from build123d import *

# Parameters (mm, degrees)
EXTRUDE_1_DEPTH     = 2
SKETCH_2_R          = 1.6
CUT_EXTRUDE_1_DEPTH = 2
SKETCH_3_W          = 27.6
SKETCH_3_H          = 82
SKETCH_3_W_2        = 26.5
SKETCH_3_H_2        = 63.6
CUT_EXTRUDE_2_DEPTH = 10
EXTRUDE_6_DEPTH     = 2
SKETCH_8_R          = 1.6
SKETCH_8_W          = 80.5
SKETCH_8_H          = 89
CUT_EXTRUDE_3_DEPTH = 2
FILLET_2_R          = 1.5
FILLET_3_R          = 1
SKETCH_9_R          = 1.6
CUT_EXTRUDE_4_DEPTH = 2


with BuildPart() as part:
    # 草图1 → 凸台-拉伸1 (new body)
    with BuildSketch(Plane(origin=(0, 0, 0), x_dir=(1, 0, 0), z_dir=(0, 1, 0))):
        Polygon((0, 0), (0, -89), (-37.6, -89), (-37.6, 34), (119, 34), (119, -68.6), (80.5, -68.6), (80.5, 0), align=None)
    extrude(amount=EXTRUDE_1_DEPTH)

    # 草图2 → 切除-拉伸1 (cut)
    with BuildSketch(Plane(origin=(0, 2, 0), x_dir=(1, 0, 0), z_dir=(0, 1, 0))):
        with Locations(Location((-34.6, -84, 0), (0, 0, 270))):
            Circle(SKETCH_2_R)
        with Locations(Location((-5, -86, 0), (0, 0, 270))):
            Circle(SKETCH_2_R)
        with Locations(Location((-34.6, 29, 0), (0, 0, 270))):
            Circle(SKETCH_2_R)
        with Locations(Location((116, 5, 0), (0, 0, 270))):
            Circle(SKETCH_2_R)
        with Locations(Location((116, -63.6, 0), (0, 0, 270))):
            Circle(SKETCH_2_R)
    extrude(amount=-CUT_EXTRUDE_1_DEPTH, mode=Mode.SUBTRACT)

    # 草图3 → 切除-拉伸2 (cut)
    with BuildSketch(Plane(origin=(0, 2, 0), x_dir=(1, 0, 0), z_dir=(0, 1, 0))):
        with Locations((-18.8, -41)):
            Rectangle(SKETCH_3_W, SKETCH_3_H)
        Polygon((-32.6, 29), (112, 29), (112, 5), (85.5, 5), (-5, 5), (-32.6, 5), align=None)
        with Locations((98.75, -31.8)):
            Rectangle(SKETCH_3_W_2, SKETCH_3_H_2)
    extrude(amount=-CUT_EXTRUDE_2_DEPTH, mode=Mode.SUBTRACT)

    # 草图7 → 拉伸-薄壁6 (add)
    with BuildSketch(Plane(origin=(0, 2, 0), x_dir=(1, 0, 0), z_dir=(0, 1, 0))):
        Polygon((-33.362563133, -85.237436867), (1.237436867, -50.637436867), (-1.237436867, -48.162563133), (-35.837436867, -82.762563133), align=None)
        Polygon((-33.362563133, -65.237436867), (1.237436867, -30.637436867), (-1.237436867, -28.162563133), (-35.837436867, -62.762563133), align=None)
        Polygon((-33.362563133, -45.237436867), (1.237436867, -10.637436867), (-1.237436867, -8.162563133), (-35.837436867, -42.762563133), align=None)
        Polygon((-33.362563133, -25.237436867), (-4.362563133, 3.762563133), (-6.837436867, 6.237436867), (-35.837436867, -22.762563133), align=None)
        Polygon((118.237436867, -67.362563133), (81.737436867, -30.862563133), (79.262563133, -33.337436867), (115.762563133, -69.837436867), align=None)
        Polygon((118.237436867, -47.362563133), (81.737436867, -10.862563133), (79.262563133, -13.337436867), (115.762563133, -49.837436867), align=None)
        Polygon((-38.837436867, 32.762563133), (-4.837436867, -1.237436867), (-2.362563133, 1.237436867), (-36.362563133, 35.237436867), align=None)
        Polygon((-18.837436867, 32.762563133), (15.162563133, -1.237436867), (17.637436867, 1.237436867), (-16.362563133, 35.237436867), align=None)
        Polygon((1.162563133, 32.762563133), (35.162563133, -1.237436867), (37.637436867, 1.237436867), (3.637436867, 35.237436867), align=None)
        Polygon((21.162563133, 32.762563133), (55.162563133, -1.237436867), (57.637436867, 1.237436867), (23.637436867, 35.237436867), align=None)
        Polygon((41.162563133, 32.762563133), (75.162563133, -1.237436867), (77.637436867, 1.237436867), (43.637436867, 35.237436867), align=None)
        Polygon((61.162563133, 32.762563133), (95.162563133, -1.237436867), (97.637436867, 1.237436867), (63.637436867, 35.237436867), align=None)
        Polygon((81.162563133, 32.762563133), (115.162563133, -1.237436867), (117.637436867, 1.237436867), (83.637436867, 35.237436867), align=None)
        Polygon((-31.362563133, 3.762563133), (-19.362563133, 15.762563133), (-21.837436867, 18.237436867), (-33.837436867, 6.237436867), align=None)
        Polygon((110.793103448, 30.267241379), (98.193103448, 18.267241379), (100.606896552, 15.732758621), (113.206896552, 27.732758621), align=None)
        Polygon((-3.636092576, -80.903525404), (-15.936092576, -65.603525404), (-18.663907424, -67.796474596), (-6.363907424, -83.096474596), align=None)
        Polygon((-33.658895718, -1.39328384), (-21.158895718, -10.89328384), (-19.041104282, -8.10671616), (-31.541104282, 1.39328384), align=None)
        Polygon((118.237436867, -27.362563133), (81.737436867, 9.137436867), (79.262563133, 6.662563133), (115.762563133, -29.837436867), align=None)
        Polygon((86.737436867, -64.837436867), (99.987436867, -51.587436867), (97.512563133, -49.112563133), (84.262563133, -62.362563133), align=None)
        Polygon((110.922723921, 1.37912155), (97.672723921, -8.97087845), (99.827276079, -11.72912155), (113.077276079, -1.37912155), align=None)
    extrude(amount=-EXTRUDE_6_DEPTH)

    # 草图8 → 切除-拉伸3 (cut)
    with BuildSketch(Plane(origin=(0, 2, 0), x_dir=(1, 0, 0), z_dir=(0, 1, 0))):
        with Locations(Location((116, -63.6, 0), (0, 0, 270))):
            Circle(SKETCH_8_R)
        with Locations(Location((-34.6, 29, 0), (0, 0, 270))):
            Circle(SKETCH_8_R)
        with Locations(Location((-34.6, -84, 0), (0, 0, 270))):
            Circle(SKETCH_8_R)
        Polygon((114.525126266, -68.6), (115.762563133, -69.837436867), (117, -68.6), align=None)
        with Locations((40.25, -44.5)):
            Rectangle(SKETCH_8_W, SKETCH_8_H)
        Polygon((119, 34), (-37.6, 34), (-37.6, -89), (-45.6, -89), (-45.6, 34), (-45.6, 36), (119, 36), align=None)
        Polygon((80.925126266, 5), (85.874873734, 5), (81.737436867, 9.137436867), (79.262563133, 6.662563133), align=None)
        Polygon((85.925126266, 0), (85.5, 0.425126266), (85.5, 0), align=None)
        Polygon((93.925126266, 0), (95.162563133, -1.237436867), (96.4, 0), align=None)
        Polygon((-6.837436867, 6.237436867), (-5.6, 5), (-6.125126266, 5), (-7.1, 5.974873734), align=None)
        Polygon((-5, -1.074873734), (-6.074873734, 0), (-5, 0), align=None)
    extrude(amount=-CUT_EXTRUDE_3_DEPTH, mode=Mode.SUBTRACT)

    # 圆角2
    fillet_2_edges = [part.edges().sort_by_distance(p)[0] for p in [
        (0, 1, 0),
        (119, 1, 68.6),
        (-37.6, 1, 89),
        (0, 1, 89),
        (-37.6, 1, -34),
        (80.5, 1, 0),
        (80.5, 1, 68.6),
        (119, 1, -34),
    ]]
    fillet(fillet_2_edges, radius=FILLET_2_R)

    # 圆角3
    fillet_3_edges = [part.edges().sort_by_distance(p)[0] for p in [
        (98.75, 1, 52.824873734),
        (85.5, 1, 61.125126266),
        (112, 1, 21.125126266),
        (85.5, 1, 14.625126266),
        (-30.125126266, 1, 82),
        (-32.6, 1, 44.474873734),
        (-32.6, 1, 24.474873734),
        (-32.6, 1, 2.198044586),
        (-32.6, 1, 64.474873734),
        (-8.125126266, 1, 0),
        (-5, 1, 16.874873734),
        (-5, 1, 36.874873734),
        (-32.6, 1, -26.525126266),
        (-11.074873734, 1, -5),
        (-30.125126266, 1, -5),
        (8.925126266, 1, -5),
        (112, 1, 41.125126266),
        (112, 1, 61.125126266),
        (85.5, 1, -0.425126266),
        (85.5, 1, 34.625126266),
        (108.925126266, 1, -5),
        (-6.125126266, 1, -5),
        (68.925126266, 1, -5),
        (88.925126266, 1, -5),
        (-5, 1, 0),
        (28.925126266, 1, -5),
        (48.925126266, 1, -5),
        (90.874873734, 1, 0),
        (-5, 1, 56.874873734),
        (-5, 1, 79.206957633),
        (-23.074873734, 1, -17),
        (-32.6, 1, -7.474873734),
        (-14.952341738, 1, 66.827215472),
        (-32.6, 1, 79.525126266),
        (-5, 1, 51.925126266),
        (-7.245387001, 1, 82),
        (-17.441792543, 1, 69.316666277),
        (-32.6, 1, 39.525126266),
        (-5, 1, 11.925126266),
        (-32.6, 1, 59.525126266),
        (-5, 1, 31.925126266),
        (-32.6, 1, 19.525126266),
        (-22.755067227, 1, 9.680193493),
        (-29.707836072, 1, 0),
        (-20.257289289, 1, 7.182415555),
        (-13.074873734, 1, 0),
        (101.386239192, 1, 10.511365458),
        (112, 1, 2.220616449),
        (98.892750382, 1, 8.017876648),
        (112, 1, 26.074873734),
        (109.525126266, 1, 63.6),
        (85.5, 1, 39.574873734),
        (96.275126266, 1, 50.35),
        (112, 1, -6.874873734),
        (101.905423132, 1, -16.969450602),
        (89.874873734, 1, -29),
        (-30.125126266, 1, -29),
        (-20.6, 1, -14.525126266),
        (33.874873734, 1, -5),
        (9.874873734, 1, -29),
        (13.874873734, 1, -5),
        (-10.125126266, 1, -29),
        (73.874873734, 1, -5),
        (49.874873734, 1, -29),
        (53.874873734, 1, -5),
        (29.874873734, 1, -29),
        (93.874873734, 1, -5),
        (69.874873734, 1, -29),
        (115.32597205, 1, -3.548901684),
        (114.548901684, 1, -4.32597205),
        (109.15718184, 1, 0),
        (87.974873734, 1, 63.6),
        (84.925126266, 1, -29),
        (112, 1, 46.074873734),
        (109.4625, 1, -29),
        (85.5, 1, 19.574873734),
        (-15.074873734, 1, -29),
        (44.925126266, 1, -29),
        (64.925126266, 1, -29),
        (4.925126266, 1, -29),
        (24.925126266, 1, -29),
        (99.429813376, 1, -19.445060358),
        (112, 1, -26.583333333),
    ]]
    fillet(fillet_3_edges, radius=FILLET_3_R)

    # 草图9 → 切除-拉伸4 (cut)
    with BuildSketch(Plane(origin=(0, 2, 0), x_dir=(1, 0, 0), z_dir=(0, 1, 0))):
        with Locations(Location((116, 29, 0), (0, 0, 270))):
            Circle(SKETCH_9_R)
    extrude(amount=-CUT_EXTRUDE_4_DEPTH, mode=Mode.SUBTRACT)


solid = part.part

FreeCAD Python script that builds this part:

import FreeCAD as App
import Part
import Sketcher


def edges_at(feature, points):
    """Names of the edges that pass closest to the given points."""
    edges = feature.Shape.Edges
    near = lambda p: min(range(len(edges)), key=lambda i: edges[i].distToShape(Part.Vertex(*p))[0])
    return sorted({f"Edge{near(p) + 1}" for p in points})


def add_polygon(sketch, points):
    """Adds a closed chain of lines whose ends are joined by coincident constraints."""
    first, n = sketch.GeometryCount, len(points)
    for a, b in zip(points, points[1:] + points[:1]):
        sketch.addGeometry(Part.LineSegment(App.Vector(*a, 0), App.Vector(*b, 0)), False)
    for i in range(n):
        sketch.addConstraint(Sketcher.Constraint("Coincident", first + i, 2, first + (i + 1) % n, 1))

doc = App.newDocument("Part")
body = doc.addObject("PartDesign::Body", "Body")

# Sketch on XZ plane
sketch1 = body.newObject("Sketcher::SketchObject", "Sketch")
sketch1.AttachmentSupport = (doc.getObject("XZ_Plane"), [""])
sketch1.MapMode = "FlatFace"
add_polygon(sketch1, [(0, 89), (0, 0), (80, 0), (80, 69), (119, 69), (119, -34), (-38, -34), (-38, 89)])  # lines 0-7
sketch1.addConstraint(Sketcher.Constraint("Vertical", 0))
sketch1.addConstraint(Sketcher.Constraint("Horizontal", 1))
sketch1.addConstraint(Sketcher.Constraint("Vertical", 2))
sketch1.addConstraint(Sketcher.Constraint("Horizontal", 3))
sketch1.addConstraint(Sketcher.Constraint("Vertical", 4))
sketch1.addConstraint(Sketcher.Constraint("Horizontal", 5))
sketch1.addConstraint(Sketcher.Constraint("Vertical", 6))
sketch1.addConstraint(Sketcher.Constraint("Horizontal", 7))
sketch1.addConstraint(Sketcher.Constraint("Coincident", 0, 2, -1, 1))
sketch1.addConstraint(Sketcher.Constraint("DistanceY", 0, 2, 0, 1, 89.0))
sketch1.addConstraint(Sketcher.Constraint("DistanceY", 6, 1, 6, 2, 123.0))
sketch1.addConstraint(Sketcher.Constraint("DistanceX", 1, 1, 1, 2, 80.5))
sketch1.addConstraint(Sketcher.Constraint("DistanceX", 3, 1, 3, 2, 38.5))
sketch1.addConstraint(Sketcher.Constraint("DistanceX", 5, 2, 5, 1, 156.6))
sketch1.addConstraint(Sketcher.Constraint("DistanceY", 2, 1, 2, 2, 68.6))
pad1 = body.newObject("PartDesign::Pad", "Pad")
pad1.Profile = sketch1
pad1.Length = 2
pad1.Reversed = True

# Sketch on XZ plane
sketch2 = body.newObject("Sketcher::SketchObject", "Sketch001")
sketch2.AttachmentSupport = (doc.getObject("XZ_Plane"), [""])
sketch2.MapMode = "FlatFace"
sketch2.AttachmentOffset = App.Placement(App.Vector(0, 0, -2), App.Rotation())
sketch2.addGeometry(Part.Circle(App.Vector(-34.6, 84, 0), App.Vector(0, 0, 1), 1.6), False)
sketch2.addGeometry(Part.Circle(App.Vector(-5, 86, 0), App.Vector(0, 0, 1), 1.6), False)
sketch2.addGeometry(Part.Circle(App.Vector(-34.6, -29, 0), App.Vector(0, 0, 1), 1.6), False)
sketch2.addGeometry(Part.Circle(App.Vector(116, -5, 0), App.Vector(0, 0, 1), 1.6), False)
sketch2.addGeometry(Part.Circle(App.Vector(116, 63.6, 0), App.Vector(0, 0, 1), 1.6), False)
sketch2.addConstraint(Sketcher.Constraint("Equal", 0, 1))
sketch2.addConstraint(Sketcher.Constraint("Equal", 1, 2))
sketch2.addConstraint(Sketcher.Constraint("Equal", 2, 3))
sketch2.addConstraint(Sketcher.Constraint("Equal", 3, 4))
sketch2.addConstraint(Sketcher.Constraint("Vertical", 0, 3, 2, 3))
sketch2.addConstraint(Sketcher.Constraint("Vertical", 3, 3, 4, 3))
sketch2.addConstraint(Sketcher.Constraint("Diameter", 0, 3.2))
sketch2.addConstraint(Sketcher.Constraint("DistanceY", -1, 1, 0, 3, 84.0))
sketch2.addConstraint(Sketcher.Constraint("DistanceX", 1, 3, -1, 1, 5.0))
sketch2.addConstraint(Sketcher.Constraint("DistanceY", -1, 1, 1, 3, 86.0))
sketch2.addConstraint(Sketcher.Constraint("DistanceY", 2, 3, -1, 1, 29.0))
sketch2.addConstraint(Sketcher.Constraint("DistanceX", -1, 1, 3, 3, 116.0))
sketch2.addConstraint(Sketcher.Constraint("DistanceY", 3, 3, -1, 1, 5.0))
sketch2.addConstraint(Sketcher.Constraint("DistanceX", 0, 3, -1, 1, 34.6))
sketch2.addConstraint(Sketcher.Constraint("DistanceY", -1, 1, 4, 3, 63.6))
pocket1 = body.newObject("PartDesign::Pocket", "Pocket")
pocket1.Profile = sketch2
pocket1.Length = 2
pocket1.Reversed = True

# Sketch on XZ plane
sketch3 = body.newObject("Sketcher::SketchObject", "Sketch002")
sketch3.AttachmentSupport = (doc.getObject("XZ_Plane"), [""])
sketch3.MapMode = "FlatFace"
sketch3.AttachmentOffset = App.Placement(App.Vector(0, 0, -2), App.Rotation())
add_polygon(sketch3, [(-33, 0), (-33, 82), (-5, 82), (-5, 0)])  # lines 0-3
add_polygon(sketch3, [(112, -29), (-33, -29), (-33, -5), (112, -5)])  # lines 4-7
add_polygon(sketch3, [(86, 0), (86, 64), (112, 64), (112, 0)])  # lines 8-11
sketch3.addConstraint(Sketcher.Constraint("Vertical", 0))
sketch3.addConstraint(Sketcher.Constraint("Horizontal", 1))
sketch3.addConstraint(Sketcher.Constraint("Vertical", 2))
sketch3.addConstraint(Sketcher.Constraint("Horizontal", 3))
sketch3.addConstraint(Sketcher.Constraint("Horizontal", 4))
sketch3.addConstraint(Sketcher.Constraint("Vertical", 5))
sketch3.addConstraint(Sketcher.Constraint("Horizontal", 6))
sketch3.addConstraint(Sketcher.Constraint("Vertical", 7))
sketch3.addConstraint(Sketcher.Constraint("Vertical", 8))
sketch3.addConstraint(Sketcher.Constraint("Horizontal", 9))
sketch3.addConstraint(Sketcher.Constraint("Vertical", 10))
sketch3.addConstraint(Sketcher.Constraint("Horizontal", 11))
sketch3.addConstraint(Sketcher.Constraint("PointOnObject", 2, 2, -1))
sketch3.addConstraint(Sketcher.Constraint("PointOnObject", 10, 2, -1))
sketch3.addConstraint(Sketcher.Constraint("Vertical", 3, 2, 4, 2))
sketch3.addConstraint(Sketcher.Constraint("Vertical", 7, 2, 9, 2))
sketch3.addConstraint(Sketcher.Constraint("DistanceY", 0, 1, 0, 2, 82.0))
sketch3.addConstraint(Sketcher.Constraint("DistanceY", 5, 1, 5, 2, 24.0))
sketch3.addConstraint(Sketcher.Constraint("DistanceX", 1, 1, 1, 2, 27.6))
sketch3.addConstraint(Sketcher.Constraint("DistanceX", 4, 2, 4, 1, 144.6))
sketch3.addConstraint(Sketcher.Constraint("DistanceX", 9, 1, 9, 2, 26.5))
sketch3.addConstraint(Sketcher.Constraint("DistanceY", 8, 1, 8, 2, 63.6))
sketch3.addConstraint(Sketcher.Constraint("DistanceX", 1, 2, -1, 1, 5.0))
sketch3.addConstraint(Sketcher.Constraint("DistanceY", 4, 2, -1, 1, 29.0))
pocket2 = body.newObject("PartDesign::Pocket", "Pocket001")
pocket2.Profile = sketch3
pocket2.Length = 10
pocket2.Reversed = True

# Sketch on XZ plane
sketch4 = body.newObject("Sketcher::SketchObject", "Sketch003")
sketch4.AttachmentSupport = (doc.getObject("XZ_Plane"), [""])
sketch4.MapMode = "FlatFace"
sketch4.AttachmentOffset = App.Placement(App.Vector(0, 0, -2), App.Rotation())
add_polygon(sketch4, [(-35.84, 82.76), (-33.36, 85.24), (-17.44, 69.32), (-6.36, 83.1), (-3.64, 80.9), (-14.95, 66.83), (1.24, 50.64), (-1.24, 48.16)])  # lines 0-7
add_polygon(sketch4, [(-33.36, 65.24), (1.24, 30.64), (-1.24, 28.16), (-35.84, 62.76)])  # lines 8-11
add_polygon(sketch4, [(-33.36, 45.24), (1.24, 10.64), (-1.24, 8.16), (-35.84, 42.76)])  # lines 12-15
add_polygon(sketch4, [(-20.6, -14.53), (-9.57, -3.5), (-20.26, 7.18), (-31.54, -1.39), (-33.66, 1.39), (-22.76, 9.68), (-35.84, 22.76), (-33.36, 25.24), (-7.1, -1.03), (-4.84, 1.24), (-2.36, -1.24), (-4.63, -3.5), (-4.36, -3.76), (-6.84, -6.24), (-7.1, -5.97), (-36.36, -35.24), (-38.84, -32.76), (-23.07, -17), (-33.84, -6.24), (-31.36, -3.76)])  # lines 16-35
add_polygon(sketch4, [(115.76, 69.84), (118.24, 67.36), (81.74, 30.86), (79.26, 33.34), (96.28, 50.35), (84.26, 62.36), (86.74, 64.84), (98.75, 52.82)])  # lines 36-43
add_polygon(sketch4, [(118.24, 47.36), (81.74, 10.86), (79.26, 13.34), (115.76, 49.84)])  # lines 44-47
add_polygon(sketch4, [(-18.84, -32.76), (15.16, 1.24), (17.64, -1.24), (-16.36, -35.24)])  # lines 48-51
add_polygon(sketch4, [(1.16, -32.76), (35.16, 1.24), (37.64, -1.24), (3.64, -35.24)])  # lines 52-55
add_polygon(sketch4, [(21.16, -32.76), (55.16, 1.24), (57.64, -1.24), (23.64, -35.24)])  # lines 56-59
add_polygon(sketch4, [(41.16, -32.76), (75.16, 1.24), (77.64, -1.24), (43.64, -35.24)])  # lines 60-63
add_polygon(sketch4, [(61.16, -32.76), (95.16, 1.24), (97.64, -1.24), (63.64, -35.24)])  # lines 64-67
add_polygon(sketch4, [(83.64, -35.24), (81.16, -32.76), (115.16, 1.24), (117.64, -1.24), (101.91, -16.97), (113.21, -27.73), (110.79, -30.27), (99.43, -19.45)])  # lines 68-75
add_polygon(sketch4, [(115.76, 29.84), (118.24, 27.36), (101.39, 10.51), (113.08, 1.38), (110.92, -1.38), (98.89, 8.02), (81.74, -9.14), (79.26, -6.66)])  # lines 76-83
sketch4.addConstraint(Sketcher.Constraint("Perpendicular", 0, 1))
sketch4.addConstraint(Sketcher.Constraint("Perpendicular", 2, 3))
sketch4.addConstraint(Sketcher.Constraint("Perpendicular", 3, 4))
sketch4.addConstraint(Sketcher.Constraint("Parallel", 1, 5))
sketch4.addConstraint(Sketcher.Constraint("Perpendicular", 5, 6))
sketch4.addConstraint(Sketcher.Constraint("Perpendicular", 6, 7))
sketch4.addConstraint(Sketcher.Constraint("Parallel", 7, 8))
sketch4.addConstraint(Sketcher.Constraint("Perpendicular", 8, 9))
sketch4.addConstraint(Sketcher.Constraint("Perpendicular", 9, 10))
sketch4.addConstraint(Sketcher.Constraint("Perpendicular", 10, 11))
sketch4.addConstraint(Sketcher.Constraint("Perpendicular", 11, 12))
sketch4.addConstraint(Sketcher.Constraint("Perpendicular", 12, 13))
sketch4.addConstraint(Sketcher.Constraint("Perpendicular", 13, 14))
sketch4.addConstraint(Sketcher.Constraint("Perpendicular", 14, 15))
sketch4.addConstraint(Sketcher.Constraint("Parallel", 15, 16))
sketch4.addConstraint(Sketcher.Constraint("Perpendicular", 16, 17))
sketch4.addConstraint(Sketcher.Constraint("Perpendicular", 18, 19))
sketch4.addConstraint(Sketcher.Constraint("Perpendicular", 19, 20))
sketch4.addConstraint(Sketcher.Constraint("Parallel", 17, 21))
sketch4.addConstraint(Sketcher.Constraint("Perpendicular", 21, 22))
sketch4.addConstraint(Sketcher.Constraint("Perpendicular", 22, 23))
sketch4.addConstraint(Sketcher.Constraint("Perpendicular", 23, 24))
sketch4.addConstraint(Sketcher.Constraint("Perpendicular", 24, 25))
sketch4.addConstraint(Sketcher.Constraint("Perpendicular", 25, 26))
sketch4.addConstraint(Sketcher.Constraint("Perpendicular", 26, 27))
sketch4.addConstraint(Sketcher.Constraint("Perpendicular", 27, 28))
sketch4.addConstraint(Sketcher.Constraint("Perpendicular", 28, 29))
sketch4.addConstraint(Sketcher.Constraint("Perpendicular", 29, 30))
sketch4.addConstraint(Sketcher.Constraint("Perpendicular", 30, 31))
sketch4.addConstraint(Sketcher.Constraint("Perpendicular", 31, 32))
sketch4.addConstraint(Sketcher.Constraint("Perpendicular", 32, 33))
sketch4.addConstraint(Sketcher.Constraint("Perpendicular", 33, 34))
sketch4.addConstraint(Sketcher.Constraint("Perpendicular", 34, 35))
sketch4.addConstraint(Sketcher.Constraint("Parallel", 35, 36))
sketch4.addConstraint(Sketcher.Constraint("Perpendicular", 36, 37))
sketch4.addConstraint(Sketcher.Constraint("Perpendicular", 37, 38))
sketch4.addConstraint(Sketcher.Constraint("Perpendicular", 38, 39))
sketch4.addConstraint(Sketcher.Constraint("Perpendicular", 39, 40))
sketch4.addConstraint(Sketcher.Constraint("Perpendicular", 40, 41))
sketch4.addConstraint(Sketcher.Constraint("Perpendicular", 41, 42))
sketch4.addConstraint(Sketcher.Constraint("Perpendicular", 42, 43))
sketch4.addConstraint(Sketcher.Constraint("Parallel", 43, 44))
sketch4.addConstraint(Sketcher.Constraint("Perpendicular", 44, 45))
sketch4.addConstraint(Sketcher.Constraint("Perpendicular", 45, 46))
sketch4.addConstraint(Sketcher.Constraint("Perpendicular", 46, 47))
sketch4.addConstraint(Sketcher.Constraint("Perpendicular", 47, 48))
sketch4.addConstraint(Sketcher.Constraint("Perpendicular", 48, 49))
sketch4.addConstraint(Sketcher.Constraint("Perpendicular", 49, 50))
sketch4.addConstraint(Sketcher.Constraint("Perpendicular", 50, 51))
sketch4.addConstraint(Sketcher.Constraint("Perpendicular", 51, 52))
sketch4.addConstraint(Sketcher.Constraint("Perpendicular", 52, 53))
sketch4.addConstraint(Sketcher.Constraint("Perpendicular", 53, 54))
sketch4.addConstraint(Sketcher.Constraint("Perpendicular", 54, 55))
sketch4.addConstraint(Sketcher.Constraint("Perpendicular", 55, 56))
sketch4.addConstraint(Sketcher.Constraint("Perpendicular", 56, 57))
sketch4.addConstraint(Sketcher.Constraint("Perpendicular", 57, 58))
sketch4.addConstraint(Sketcher.Constraint("Perpendicular", 58, 59))
sketch4.addConstraint(Sketcher.Constraint("Perpendicular", 59, 60))
sketch4.addConstraint(Sketcher.Constraint("Perpendicular", 60, 61))
sketch4.addConstraint(Sketcher.Constraint("Perpendicular", 61, 62))
sketch4.addConstraint(Sketcher.Constraint("Perpendicular", 62, 63))
sketch4.addConstraint(Sketcher.Constraint("Perpendicular", 63, 64))
sketch4.addConstraint(Sketcher.Constraint("Perpendicular", 64, 65))
sketch4.addConstraint(Sketcher.Constraint("Perpendicular", 65, 66))
sketch4.addConstraint(Sketcher.Constraint("Perpendicular", 66, 67))
sketch4.addConstraint(Sketcher.Constraint("Parallel", 67, 68))
sketch4.addConstraint(Sketcher.Constraint("Perpendicular", 68, 69))
sketch4.addConstraint(Sketcher.Constraint("Perpendicular", 69, 70))
sketch4.addConstraint(Sketcher.Constraint("Perpendicular", 70, 71))
sketch4.addConstraint(Sketcher.Constraint("Perpendicular", 72, 73))
sketch4.addConstraint(Sketcher.Constraint("Perpendicular", 73, 74))
sketch4.addConstraint(Sketcher.Constraint("Parallel", 71, 75))
sketch4.addConstraint(Sketcher.Constraint("Perpendicular", 75, 76))
sketch4.addConstraint(Sketcher.Constraint("Perpendicular", 76, 77))
sketch4.addConstraint(Sketcher.Constraint("Perpendicular", 78, 79))
sketch4.addConstraint(Sketcher.Constraint("Perpendicular", 79, 80))
sketch4.addConstraint(Sketcher.Constraint("Parallel", 77, 81))
sketch4.addConstraint(Sketcher.Constraint("Perpendicular", 81, 82))
sketch4.addConstraint(Sketcher.Constraint("Perpendicular", 82, 83))
sketch4.addConstraint(Sketcher.Constraint("Horizontal", 16, 2, 26, 2))
sketch4.addConstraint(Sketcher.Constraint("Horizontal", 28, 2, 33, 2))
sketch4.addConstraint(Sketcher.Constraint("Horizontal", 27, 2, 34, 2))
sketch4.addConstraint(Sketcher.Constraint("Horizontal", 24, 2, 48, 2))
sketch4.addConstraint(Sketcher.Constraint("Horizontal", 25, 2, 49, 2))
sketch4.addConstraint(Sketcher.Constraint("Horizontal", 30, 2, 50, 2))
sketch4.addConstraint(Sketcher.Constraint("Horizontal", 31, 2, 51, 2))
sketch4.addConstraint(Sketcher.Constraint("Horizontal", 48, 2, 52, 2))
sketch4.addConstraint(Sketcher.Constraint("Horizontal", 49, 2, 53, 2))
sketch4.addConstraint(Sketcher.Constraint("Horizontal", 50, 2, 54, 2))
sketch4.addConstraint(Sketcher.Constraint("Horizontal", 52, 2, 56, 2))
sketch4.addConstraint(Sketcher.Constraint("Horizontal", 53, 2, 57, 2))
sketch4.addConstraint(Sketcher.Constraint("Horizontal", 54, 2, 58, 2))
sketch4.addConstraint(Sketcher.Constraint("Horizontal", 56, 2, 60, 2))
sketch4.addConstraint(Sketcher.Constraint("Horizontal", 57, 2, 61, 2))
sketch4.addConstraint(Sketcher.Constraint("Horizontal", 58, 2, 62, 2))
sketch4.addConstraint(Sketcher.Constraint("Horizontal", 60, 2, 64, 2))
sketch4.addConstraint(Sketcher.Constraint("Horizontal", 61, 2, 65, 2))
sketch4.addConstraint(Sketcher.Constraint("Horizontal", 62, 2, 66, 2))
sketch4.addConstraint(Sketcher.Constraint("Horizontal", 67, 2, 68, 2))
sketch4.addConstraint(Sketcher.Constraint("Horizontal", 64, 2, 69, 2))
sketch4.addConstraint(Sketcher.Constraint("Horizontal", 65, 2, 70, 2))
sketch4.addConstraint(Sketcher.Constraint("Horizontal", 66, 2, 75, 2))
sketch4.addConstraint(Sketcher.Constraint("Vertical", 5, 2, 8, 2))
sketch4.addConstraint(Sketcher.Constraint("Vertical", 6, 2, 9, 2))
sketch4.addConstraint(Sketcher.Constraint("Vertical", 7, 2, 10, 2))
sketch4.addConstraint(Sketcher.Constraint("Vertical", 0, 2, 11, 2))
sketch4.addConstraint(Sketcher.Constraint("Vertical", 8, 2, 12, 2))
sketch4.addConstraint(Sketcher.Constraint("Vertical", 9, 2, 13, 2))
sketch4.addConstraint(Sketcher.Constraint("Vertical", 10, 2, 14, 2))
sketch4.addConstraint(Sketcher.Constraint("Vertical", 14, 2, 21, 2))
sketch4.addConstraint(Sketcher.Constraint("Vertical", 15, 2, 22, 2))
sketch4.addConstraint(Sketcher.Constraint("Vertical", 23, 2, 29, 2))
sketch4.addConstraint(Sketcher.Constraint("Vertical", 37, 2, 44, 2))
sketch4.addConstraint(Sketcher.Constraint("Vertical", 38, 2, 45, 2))
sketch4.addConstraint(Sketcher.Constraint("Vertical", 43, 2, 46, 2))
sketch4.addConstraint(Sketcher.Constraint("Vertical", 36, 2, 47, 2))
sketch4.addConstraint(Sketcher.Constraint("Vertical", 47, 2, 76, 2))
sketch4.addConstraint(Sketcher.Constraint("Vertical", 44, 2, 81, 2))
sketch4.addConstraint(Sketcher.Constraint("Vertical", 45, 2, 82, 2))
sketch4.addConstraint(Sketcher.Constraint("Vertical", 46, 2, 83, 2))
sketch4.addConstraint(Sketcher.Constraint("Equal", 0, 3))
sketch4.addConstraint(Sketcher.Constraint("Equal", 15, 19))
sketch4.addConstraint(Sketcher.Constraint("Equal", 22, 25))
sketch4.addConstraint(Sketcher.Constraint("Equal", 24, 26))
sketch4.addConstraint(Sketcher.Constraint("Equal", 25, 28))
sketch4.addConstraint(Sketcher.Constraint("Equal", 27, 29))
sketch4.addConstraint(Sketcher.Constraint("Equal", 33, 35))
sketch4.addConstraint(Sketcher.Constraint("Equal", 34, 36))
sketch4.addConstraint(Sketcher.Constraint("Equal", 38, 41))
sketch4.addConstraint(Sketcher.Constraint("Equal", 39, 43))
sketch4.addConstraint(Sketcher.Constraint("Equal", 70, 73))
sketch4.addConstraint(Sketcher.Constraint("Equal", 76, 79))
sketch4.addConstraint(Sketcher.Constraint("DistanceY", 32, 2, -1, 1, 17.0))
sketch4.addConstraint(Sketcher.Constraint("Distance", 0, 3.5))
sketch4.addConstraint(Sketcher.Constraint("DistanceY", 16, 2, -1, 1, 3.5))
sketch4.addConstraint(Sketcher.Constraint("DistanceX", 23, 2, -1, 1, 7.1))
sketch4.addConstraint(Sketcher.Constraint("DistanceY", -1, 1, 39, 2, 50.35))
sketch4.addConstraint(Sketcher.Constraint("DistanceX", -1, 1, 42, 2, 98.75))
sketch4.addConstraint(Sketcher.Constraint("Distance", 1, 22.51537))
sketch4.addConstraint(Sketcher.Constraint("Distance", 7, 48.931789))
sketch4.addConstraint(Sketcher.Constraint("Distance", 18, 14.172759))
sketch4.addConstraint(Sketcher.Constraint("Distance", 27, 0.37132))
sketch4.addConstraint(Sketcher.Constraint("Distance", 32, 22.291631))
sketch4.addConstraint(Sketcher.Constraint("Distance", 40, 16.98833))
sketch4.addConstraint(Sketcher.Constraint("Distance", 48, 48.083261))
sketch4.addConstraint(Sketcher.Constraint("Distance", 80, 15.265118))
sketch4.addConstraint(Sketcher.Constraint("DistanceX", 4, 2, -1, 1, 14.952342))
sketch4.addConstraint(Sketcher.Constraint("DistanceX", 17, 2, -1, 1, 20.257289))
sketch4.addConstraint(Sketcher.Constraint("DistanceY", 71, 2, -1, 1, 16.969451))
sketch4.addConstraint(Sketcher.Constraint("DistanceY", 72, 2, -1, 1, 27.732759))
sketch4.addConstraint(Sketcher.Constraint("DistanceY", 73, 2, -1, 1, 30.267241))
sketch4.addConstraint(Sketcher.Constraint("DistanceX", -1, 1, 77, 2, 101.386239))
sketch4.addConstraint(Sketcher.Constraint("DistanceY", -1, 1, 78, 2, 1.379122))
sketch4.addConstraint(Sketcher.Constraint("DistanceY", 79, 2, -1, 1, 1.379122))
sketch4.addConstraint(Sketcher.Constraint("Distance", 2, 17.680573))
sketch4.addConstraint(Sketcher.Constraint("Distance", 4, 18.061008))
sketch4.addConstraint(Sketcher.Constraint("Distance", 20, 13.695486))
sketch4.addConstraint(Sketcher.Constraint("Distance", 37, 51.618795))
sketch4.addConstraint(Sketcher.Constraint("DistanceY", -1, 1, 0, 2, 85.237437))
sketch4.addConstraint(Sketcher.Constraint("DistanceY", -1, 1, 8, 2, 30.637437))
sketch4.addConstraint(Sketcher.Constraint("DistanceY", -1, 1, 12, 2, 10.637437))
sketch4.addConstraint(Sketcher.Constraint("DistanceY", -1, 1, 44, 2, 10.862563))
sketch4.addConstraint(Sketcher.Constraint("DistanceX", -1, 1, 48, 2, 15.162563))
sketch4.addConstraint(Sketcher.Constraint("DistanceX", -1, 1, 52, 2, 35.162563))
sketch4.addConstraint(Sketcher.Constraint("DistanceX", -1, 1, 56, 2, 55.162563))
sketch4.addConstraint(Sketcher.Constraint("DistanceX", -1, 1, 60, 2, 75.162563))
sketch4.addConstraint(Sketcher.Constraint("DistanceX", -1, 1, 64, 2, 95.162563))
sketch4.addConstraint(Sketcher.Constraint("DistanceX", -1, 1, 68, 2, 81.162563))
pad2 = body.newObject("PartDesign::Pad", "Pad001")
pad2.Profile = sketch4
pad2.Length = 2

# Sketch on XZ plane
sketch5 = body.newObject("Sketcher::SketchObject", "Sketch004")
sketch5.AttachmentSupport = (doc.getObject("XZ_Plane"), [""])
sketch5.MapMode = "FlatFace"
sketch5.AttachmentOffset = App.Placement(App.Vector(0, 0, -2), App.Rotation())
sketch5.addGeometry(Part.Circle(App.Vector(116, 63.6, 0), App.Vector(0, 0, 1), 1.6), False)  # 0
sketch5.addGeometry(Part.Circle(App.Vector(-34.6, -29, 0), App.Vector(0, 0, 1), 1.6), False)  # 1
sketch5.addGeometry(Part.Circle(App.Vector(-34.6, 84, 0), App.Vector(0, 0, 1), 1.6), False)  # 2
add_polygon(sketch5, [(114.53, 68.6), (115.76, 69.84), (117, 68.6)])  # lines 3-5
add_polygon(sketch5, [(0, 0), (0, 89), (80.5, 89), (80.5, 0)])  # lines 6-9
add_polygon(sketch5, [(-37.6, -34), (119, -34), (119, -36), (-45.6, -36), (-45.6, 89), (-37.6, 89)])  # lines 10-15
add_polygon(sketch5, [(80.93, -5), (85.87, -5), (81.74, -9.14), (79.26, -6.66)])  # lines 16-19
add_polygon(sketch5, [(85.93, 0), (85.5, -0.43), (85.5, 0)])  # lines 20-22
add_polygon(sketch5, [(93.93, 0), (95.16, 1.24), (96.4, 0)])  # lines 23-25
add_polygon(sketch5, [(-5.6, -5), (-6.84, -6.24), (-7.1, -5.97), (-6.13, -5)])  # lines 26-29
add_polygon(sketch5, [(-6.07, 0), (-5, 1.07), (-5, 0)])  # lines 30-32
sketch5.addConstraint(Sketcher.Constraint("Horizontal", 5))
sketch5.addConstraint(Sketcher.Constraint("Vertical", 6))
sketch5.addConstraint(Sketcher.Constraint("Horizontal", 7))
sketch5.addConstraint(Sketcher.Constraint("Vertical", 8))
sketch5.addConstraint(Sketcher.Constraint("Horizontal", 9))
sketch5.addConstraint(Sketcher.Constraint("Horizontal", 10))
sketch5.addConstraint(Sketcher.Constraint("Vertical", 11))
sketch5.addConstraint(Sketcher.Constraint("Horizontal", 12))
sketch5.addConstraint(Sketcher.Constraint("Vertical", 13))
sketch5.addConstraint(Sketcher.Constraint("Horizontal", 14))
sketch5.addConstraint(Sketcher.Constraint("Vertical", 15))
sketch5.addConstraint(Sketcher.Constraint("Horizontal", 16))
sketch5.addConstraint(Sketcher.Constraint("Vertical", 21))
sketch5.addConstraint(Sketcher.Constraint("Horizontal", 22))
sketch5.addConstraint(Sketcher.Constraint("Horizontal", 25))
sketch5.addConstraint(Sketcher.Constraint("Horizontal", 29))
sketch5.addConstraint(Sketcher.Constraint("Vertical", 31))
sketch5.addConstraint(Sketcher.Constraint("Horizontal", 32))
sketch5.addConstraint(Sketcher.Constraint("Coincident", 9, 2, -1, 1))
sketch5.addConstraint(Sketcher.Constraint("Equal", 0, 1))
sketch5.addConstraint(Sketcher.Constraint("Equal", 1, 2))
sketch5.addConstraint(Sketcher.Constraint("PointOnObject", 21, 2, -1))
sketch5.addConstraint(Sketcher.Constraint("PointOnObject", 24, 2, -1))
sketch5.addConstraint(Sketcher.Constraint("PointOnObject", 31, 2, -1))
sketch5.addConstraint(Sketcher.Constraint("Perpendicular", 3, 4))
sketch5.addConstraint(Sketcher.Constraint("Perpendicular", 4, 17))
sketch5.addConstraint(Sketcher.Constraint("Perpendicular", 17, 18))
sketch5.addConstraint(Sketcher.Constraint("Perpendicular", 18, 19))
sketch5.addConstraint(Sketcher.Constraint("Parallel", 19, 20))
sketch5.addConstraint(Sketcher.Constraint("Parallel", 20, 23))
sketch5.addConstraint(Sketcher.Constraint("Perpendicular", 23, 24))
sketch5.addConstraint(Sketcher.Constraint("Perpendicular", 24, 26))
sketch5.addConstraint(Sketcher.Constraint("Perpendicular", 26, 27))
sketch5.addConstraint(Sketcher.Constraint("Perpendicular", 27, 28))
sketch5.addConstraint(Sketcher.Constraint("Parallel", 28, 30))
sketch5.addConstraint(Sketcher.Constraint("Horizontal", 7, 2, 13, 2))
sketch5.addConstraint(Sketcher.Constraint("Horizontal", 19, 2, 28, 2))
sketch5.addConstraint(Sketcher.Constraint("Vertical", 1, 3, 2, 3))
sketch5.addConstraint(Sketcher.Constraint("Equal", 5, 25))
sketch5.addConstraint(Sketcher.Constraint("Equal", 22, 21))
sketch5.addConstraint(Sketcher.Constraint("Equal", 24, 26))
sketch5.addConstraint(Sketcher.Constraint("Diameter", 0, 3.2))
sketch5.addConstraint(Sketcher.Constraint("DistanceX", 14, 1, 14, 2, 8.0))
sketch5.addConstraint(Sketcher.Constraint("DistanceY", 6, 1, 6, 2, 89.0))
sketch5.addConstraint(Sketcher.Constraint("DistanceY", 11, 2, 11, 1, 2.0))
sketch5.addConstraint(Sketcher.Constraint("DistanceY", 13, 1, 13, 2, 125.0))
sketch5.addConstraint(Sketcher.Constraint("DistanceX", 7, 1, 7, 2, 80.5))
sketch5.addConstraint(Sketcher.Constraint("DistanceX", 10, 1, 10, 2, 156.6))
sketch5.addConstraint(Sketcher.Constraint("DistanceX", -1, 1, 0, 3, 116.0))
sketch5.addConstraint(Sketcher.Constraint("DistanceY", 1, 3, -1, 1, 29.0))
sketch5.addConstraint(Sketcher.Constraint("DistanceY", -1, 1, 2, 3, 84.0))
sketch5.addConstraint(Sketcher.Constraint("DistanceX", -1, 1, 4, 2, 117.0))
sketch5.addConstraint(Sketcher.Constraint("DistanceX", -1, 1, 10, 2, 119.0))
sketch5.addConstraint(Sketcher.Constraint("DistanceY", 16, 2, -1, 1, 5.0))
sketch5.addConstraint(Sketcher.Constraint("DistanceX", 30, 2, -1, 1, 5.0))
sketch5.addConstraint(Sketcher.Constraint("DistanceY", 0, 3, 4, 2, 5.0))
sketch5.addConstraint(Sketcher.Constraint("DistanceX", 12, 2, 1, 3, 11.0))
sketch5.addConstraint(Sketcher.Constraint("DistanceX", 8, 2, 20, 2, 5.0))
sketch5.addConstraint(Sketcher.Constraint("DistanceX", 19, 2, 22, 2, 5.0))
sketch5.addConstraint(Sketcher.Constraint("DistanceX", 22, 2, 25, 2, 8.0))
sketch5.addConstraint(Sketcher.Constraint("DistanceX", 1, 3, 29, 2, 29.0))
sketch5.addConstraint(Sketcher.Constraint("Distance", 18, 3.5))
sketch5.addConstraint(Sketcher.Constraint("DistanceY", -1, 1, 0, 3, 63.6))
sketch5.addConstraint(Sketcher.Constraint("DistanceX", -1, 1, 24, 2, 96.4))
sketch5.addConstraint(Sketcher.Constraint("DistanceX", 27, 2, -1, 1, 7.1))
sketch5.addConstraint(Sketcher.Constraint("DistanceX", 26, 2, 18, 2, 86.1))
sketch5.addConstraint(Sketcher.Constraint("Distance", 3, 1.75))
sketch5.addConstraint(Sketcher.Constraint("Distance", 30, 1.520101))
pocket3 = body.newObject("PartDesign::Pocket", "Pocket002")
pocket3.Profile = sketch5
pocket3.Length = 2
pocket3.Reversed = True
doc.recompute()

fillet = body.newObject("PartDesign::Fillet", "Fillet")
fillet.Base = (pocket3, edges_at(pocket3, [
    (0, 1, 0),
    (119, 1, 68.6),
    (-37.6, 1, 89),
    (0, 1, 89),
    (-37.6, 1, -34),
    (80.5, 1, 0),
    (80.5, 1, 68.6),
    (119, 1, -34),
]))
fillet.Radius = 1.5
doc.recompute()

fillet2 = body.newObject("PartDesign::Fillet", "Fillet001")
fillet2.Base = (fillet, edges_at(fillet, [
    (98.75, 1, 52.825),
    (85.5, 1, 61.125),
    (112, 1, 21.125),
    (85.5, 1, 14.625),
    (-30.125, 1, 82),
    (-32.6, 1, 44.475),
    (-32.6, 1, 24.475),
    (-32.6, 1, 2.198),
    (-32.6, 1, 64.475),
    (-8.125, 1, 0),
    (-5, 1, 16.875),
    (-5, 1, 36.875),
    (-32.6, 1, -26.525),
    (-11.075, 1, -5),
    (-30.125, 1, -5),
    (8.925, 1, -5),
    (112, 1, 41.125),
    (112, 1, 61.125),
    (85.5, 1, -0.425),
    (85.5, 1, 34.625),
    (108.925, 1, -5),
    (-6.125, 1, -5),
    (68.925, 1, -5),
    (88.925, 1, -5),
    (-5, 1, 0),
    (28.925, 1, -5),
    (48.925, 1, -5),
    (90.875, 1, 0),
    (-5, 1, 56.875),
    (-5, 1, 79.207),
    (-23.075, 1, -17),
    (-32.6, 1, -7.475),
    (-14.952, 1, 66.827),
    (-32.6, 1, 79.525),
    (-5, 1, 51.925),
    (-7.245, 1, 82),
    (-17.442, 1, 69.317),
    (-32.6, 1, 39.525),
    (-5, 1, 11.925),
    (-32.6, 1, 59.525),
    (-5, 1, 31.925),
    (-32.6, 1, 19.525),
    (-22.755, 1, 9.68),
    (-29.708, 1, 0),
    (-20.257, 1, 7.182),
    (-13.075, 1, 0),
    (101.386, 1, 10.511),
    (112, 1, 2.221),
    (98.893, 1, 8.018),
    (112, 1, 26.075),
    (109.525, 1, 63.6),
    (85.5, 1, 39.575),
    (96.275, 1, 50.35),
    (112, 1, -6.875),
    (101.905, 1, -16.969),
    (89.875, 1, -29),
    (-30.125, 1, -29),
    (-20.6, 1, -14.525),
    (33.875, 1, -5),
    (9.875, 1, -29),
    (13.875, 1, -5),
    (-10.125, 1, -29),
    (73.875, 1, -5),
    (49.875, 1, -29),
    (53.875, 1, -5),
    (29.875, 1, -29),
    (93.875, 1, -5),
    (69.875, 1, -29),
    (115.326, 1, -3.549),
    (114.549, 1, -4.326),
    (109.157, 1, 0),
    (87.975, 1, 63.6),
    (84.925, 1, -29),
    (112, 1, 46.075),
    (109.463, 1, -29),
    (85.5, 1, 19.575),
    (-15.075, 1, -29),
    (44.925, 1, -29),
    (64.925, 1, -29),
    (4.925, 1, -29),
    (24.925, 1, -29),
    (99.43, 1, -19.445),
    (112, 1, -26.583),
]))
fillet2.Radius = 1

# Sketch on XZ plane
sketch6 = body.newObject("Sketcher::SketchObject", "Sketch005")
sketch6.AttachmentSupport = (doc.getObject("XZ_Plane"), [""])
sketch6.MapMode = "FlatFace"
sketch6.AttachmentOffset = App.Placement(App.Vector(0, 0, -2), App.Rotation())
sketch6.addGeometry(Part.Circle(App.Vector(116, -29, 0), App.Vector(0, 0, 1), 1.6), False)
sketch6.addConstraint(Sketcher.Constraint("Diameter", 0, 3.2))
sketch6.addConstraint(Sketcher.Constraint("DistanceX", -1, 1, 0, 3, 116.0))
sketch6.addConstraint(Sketcher.Constraint("DistanceY", 0, 3, -1, 1, 29.0))
pocket4 = body.newObject("PartDesign::Pocket", "Pocket003")
pocket4.Profile = sketch6
pocket4.Length = 2
pocket4.Reversed = True

doc.recompute()
